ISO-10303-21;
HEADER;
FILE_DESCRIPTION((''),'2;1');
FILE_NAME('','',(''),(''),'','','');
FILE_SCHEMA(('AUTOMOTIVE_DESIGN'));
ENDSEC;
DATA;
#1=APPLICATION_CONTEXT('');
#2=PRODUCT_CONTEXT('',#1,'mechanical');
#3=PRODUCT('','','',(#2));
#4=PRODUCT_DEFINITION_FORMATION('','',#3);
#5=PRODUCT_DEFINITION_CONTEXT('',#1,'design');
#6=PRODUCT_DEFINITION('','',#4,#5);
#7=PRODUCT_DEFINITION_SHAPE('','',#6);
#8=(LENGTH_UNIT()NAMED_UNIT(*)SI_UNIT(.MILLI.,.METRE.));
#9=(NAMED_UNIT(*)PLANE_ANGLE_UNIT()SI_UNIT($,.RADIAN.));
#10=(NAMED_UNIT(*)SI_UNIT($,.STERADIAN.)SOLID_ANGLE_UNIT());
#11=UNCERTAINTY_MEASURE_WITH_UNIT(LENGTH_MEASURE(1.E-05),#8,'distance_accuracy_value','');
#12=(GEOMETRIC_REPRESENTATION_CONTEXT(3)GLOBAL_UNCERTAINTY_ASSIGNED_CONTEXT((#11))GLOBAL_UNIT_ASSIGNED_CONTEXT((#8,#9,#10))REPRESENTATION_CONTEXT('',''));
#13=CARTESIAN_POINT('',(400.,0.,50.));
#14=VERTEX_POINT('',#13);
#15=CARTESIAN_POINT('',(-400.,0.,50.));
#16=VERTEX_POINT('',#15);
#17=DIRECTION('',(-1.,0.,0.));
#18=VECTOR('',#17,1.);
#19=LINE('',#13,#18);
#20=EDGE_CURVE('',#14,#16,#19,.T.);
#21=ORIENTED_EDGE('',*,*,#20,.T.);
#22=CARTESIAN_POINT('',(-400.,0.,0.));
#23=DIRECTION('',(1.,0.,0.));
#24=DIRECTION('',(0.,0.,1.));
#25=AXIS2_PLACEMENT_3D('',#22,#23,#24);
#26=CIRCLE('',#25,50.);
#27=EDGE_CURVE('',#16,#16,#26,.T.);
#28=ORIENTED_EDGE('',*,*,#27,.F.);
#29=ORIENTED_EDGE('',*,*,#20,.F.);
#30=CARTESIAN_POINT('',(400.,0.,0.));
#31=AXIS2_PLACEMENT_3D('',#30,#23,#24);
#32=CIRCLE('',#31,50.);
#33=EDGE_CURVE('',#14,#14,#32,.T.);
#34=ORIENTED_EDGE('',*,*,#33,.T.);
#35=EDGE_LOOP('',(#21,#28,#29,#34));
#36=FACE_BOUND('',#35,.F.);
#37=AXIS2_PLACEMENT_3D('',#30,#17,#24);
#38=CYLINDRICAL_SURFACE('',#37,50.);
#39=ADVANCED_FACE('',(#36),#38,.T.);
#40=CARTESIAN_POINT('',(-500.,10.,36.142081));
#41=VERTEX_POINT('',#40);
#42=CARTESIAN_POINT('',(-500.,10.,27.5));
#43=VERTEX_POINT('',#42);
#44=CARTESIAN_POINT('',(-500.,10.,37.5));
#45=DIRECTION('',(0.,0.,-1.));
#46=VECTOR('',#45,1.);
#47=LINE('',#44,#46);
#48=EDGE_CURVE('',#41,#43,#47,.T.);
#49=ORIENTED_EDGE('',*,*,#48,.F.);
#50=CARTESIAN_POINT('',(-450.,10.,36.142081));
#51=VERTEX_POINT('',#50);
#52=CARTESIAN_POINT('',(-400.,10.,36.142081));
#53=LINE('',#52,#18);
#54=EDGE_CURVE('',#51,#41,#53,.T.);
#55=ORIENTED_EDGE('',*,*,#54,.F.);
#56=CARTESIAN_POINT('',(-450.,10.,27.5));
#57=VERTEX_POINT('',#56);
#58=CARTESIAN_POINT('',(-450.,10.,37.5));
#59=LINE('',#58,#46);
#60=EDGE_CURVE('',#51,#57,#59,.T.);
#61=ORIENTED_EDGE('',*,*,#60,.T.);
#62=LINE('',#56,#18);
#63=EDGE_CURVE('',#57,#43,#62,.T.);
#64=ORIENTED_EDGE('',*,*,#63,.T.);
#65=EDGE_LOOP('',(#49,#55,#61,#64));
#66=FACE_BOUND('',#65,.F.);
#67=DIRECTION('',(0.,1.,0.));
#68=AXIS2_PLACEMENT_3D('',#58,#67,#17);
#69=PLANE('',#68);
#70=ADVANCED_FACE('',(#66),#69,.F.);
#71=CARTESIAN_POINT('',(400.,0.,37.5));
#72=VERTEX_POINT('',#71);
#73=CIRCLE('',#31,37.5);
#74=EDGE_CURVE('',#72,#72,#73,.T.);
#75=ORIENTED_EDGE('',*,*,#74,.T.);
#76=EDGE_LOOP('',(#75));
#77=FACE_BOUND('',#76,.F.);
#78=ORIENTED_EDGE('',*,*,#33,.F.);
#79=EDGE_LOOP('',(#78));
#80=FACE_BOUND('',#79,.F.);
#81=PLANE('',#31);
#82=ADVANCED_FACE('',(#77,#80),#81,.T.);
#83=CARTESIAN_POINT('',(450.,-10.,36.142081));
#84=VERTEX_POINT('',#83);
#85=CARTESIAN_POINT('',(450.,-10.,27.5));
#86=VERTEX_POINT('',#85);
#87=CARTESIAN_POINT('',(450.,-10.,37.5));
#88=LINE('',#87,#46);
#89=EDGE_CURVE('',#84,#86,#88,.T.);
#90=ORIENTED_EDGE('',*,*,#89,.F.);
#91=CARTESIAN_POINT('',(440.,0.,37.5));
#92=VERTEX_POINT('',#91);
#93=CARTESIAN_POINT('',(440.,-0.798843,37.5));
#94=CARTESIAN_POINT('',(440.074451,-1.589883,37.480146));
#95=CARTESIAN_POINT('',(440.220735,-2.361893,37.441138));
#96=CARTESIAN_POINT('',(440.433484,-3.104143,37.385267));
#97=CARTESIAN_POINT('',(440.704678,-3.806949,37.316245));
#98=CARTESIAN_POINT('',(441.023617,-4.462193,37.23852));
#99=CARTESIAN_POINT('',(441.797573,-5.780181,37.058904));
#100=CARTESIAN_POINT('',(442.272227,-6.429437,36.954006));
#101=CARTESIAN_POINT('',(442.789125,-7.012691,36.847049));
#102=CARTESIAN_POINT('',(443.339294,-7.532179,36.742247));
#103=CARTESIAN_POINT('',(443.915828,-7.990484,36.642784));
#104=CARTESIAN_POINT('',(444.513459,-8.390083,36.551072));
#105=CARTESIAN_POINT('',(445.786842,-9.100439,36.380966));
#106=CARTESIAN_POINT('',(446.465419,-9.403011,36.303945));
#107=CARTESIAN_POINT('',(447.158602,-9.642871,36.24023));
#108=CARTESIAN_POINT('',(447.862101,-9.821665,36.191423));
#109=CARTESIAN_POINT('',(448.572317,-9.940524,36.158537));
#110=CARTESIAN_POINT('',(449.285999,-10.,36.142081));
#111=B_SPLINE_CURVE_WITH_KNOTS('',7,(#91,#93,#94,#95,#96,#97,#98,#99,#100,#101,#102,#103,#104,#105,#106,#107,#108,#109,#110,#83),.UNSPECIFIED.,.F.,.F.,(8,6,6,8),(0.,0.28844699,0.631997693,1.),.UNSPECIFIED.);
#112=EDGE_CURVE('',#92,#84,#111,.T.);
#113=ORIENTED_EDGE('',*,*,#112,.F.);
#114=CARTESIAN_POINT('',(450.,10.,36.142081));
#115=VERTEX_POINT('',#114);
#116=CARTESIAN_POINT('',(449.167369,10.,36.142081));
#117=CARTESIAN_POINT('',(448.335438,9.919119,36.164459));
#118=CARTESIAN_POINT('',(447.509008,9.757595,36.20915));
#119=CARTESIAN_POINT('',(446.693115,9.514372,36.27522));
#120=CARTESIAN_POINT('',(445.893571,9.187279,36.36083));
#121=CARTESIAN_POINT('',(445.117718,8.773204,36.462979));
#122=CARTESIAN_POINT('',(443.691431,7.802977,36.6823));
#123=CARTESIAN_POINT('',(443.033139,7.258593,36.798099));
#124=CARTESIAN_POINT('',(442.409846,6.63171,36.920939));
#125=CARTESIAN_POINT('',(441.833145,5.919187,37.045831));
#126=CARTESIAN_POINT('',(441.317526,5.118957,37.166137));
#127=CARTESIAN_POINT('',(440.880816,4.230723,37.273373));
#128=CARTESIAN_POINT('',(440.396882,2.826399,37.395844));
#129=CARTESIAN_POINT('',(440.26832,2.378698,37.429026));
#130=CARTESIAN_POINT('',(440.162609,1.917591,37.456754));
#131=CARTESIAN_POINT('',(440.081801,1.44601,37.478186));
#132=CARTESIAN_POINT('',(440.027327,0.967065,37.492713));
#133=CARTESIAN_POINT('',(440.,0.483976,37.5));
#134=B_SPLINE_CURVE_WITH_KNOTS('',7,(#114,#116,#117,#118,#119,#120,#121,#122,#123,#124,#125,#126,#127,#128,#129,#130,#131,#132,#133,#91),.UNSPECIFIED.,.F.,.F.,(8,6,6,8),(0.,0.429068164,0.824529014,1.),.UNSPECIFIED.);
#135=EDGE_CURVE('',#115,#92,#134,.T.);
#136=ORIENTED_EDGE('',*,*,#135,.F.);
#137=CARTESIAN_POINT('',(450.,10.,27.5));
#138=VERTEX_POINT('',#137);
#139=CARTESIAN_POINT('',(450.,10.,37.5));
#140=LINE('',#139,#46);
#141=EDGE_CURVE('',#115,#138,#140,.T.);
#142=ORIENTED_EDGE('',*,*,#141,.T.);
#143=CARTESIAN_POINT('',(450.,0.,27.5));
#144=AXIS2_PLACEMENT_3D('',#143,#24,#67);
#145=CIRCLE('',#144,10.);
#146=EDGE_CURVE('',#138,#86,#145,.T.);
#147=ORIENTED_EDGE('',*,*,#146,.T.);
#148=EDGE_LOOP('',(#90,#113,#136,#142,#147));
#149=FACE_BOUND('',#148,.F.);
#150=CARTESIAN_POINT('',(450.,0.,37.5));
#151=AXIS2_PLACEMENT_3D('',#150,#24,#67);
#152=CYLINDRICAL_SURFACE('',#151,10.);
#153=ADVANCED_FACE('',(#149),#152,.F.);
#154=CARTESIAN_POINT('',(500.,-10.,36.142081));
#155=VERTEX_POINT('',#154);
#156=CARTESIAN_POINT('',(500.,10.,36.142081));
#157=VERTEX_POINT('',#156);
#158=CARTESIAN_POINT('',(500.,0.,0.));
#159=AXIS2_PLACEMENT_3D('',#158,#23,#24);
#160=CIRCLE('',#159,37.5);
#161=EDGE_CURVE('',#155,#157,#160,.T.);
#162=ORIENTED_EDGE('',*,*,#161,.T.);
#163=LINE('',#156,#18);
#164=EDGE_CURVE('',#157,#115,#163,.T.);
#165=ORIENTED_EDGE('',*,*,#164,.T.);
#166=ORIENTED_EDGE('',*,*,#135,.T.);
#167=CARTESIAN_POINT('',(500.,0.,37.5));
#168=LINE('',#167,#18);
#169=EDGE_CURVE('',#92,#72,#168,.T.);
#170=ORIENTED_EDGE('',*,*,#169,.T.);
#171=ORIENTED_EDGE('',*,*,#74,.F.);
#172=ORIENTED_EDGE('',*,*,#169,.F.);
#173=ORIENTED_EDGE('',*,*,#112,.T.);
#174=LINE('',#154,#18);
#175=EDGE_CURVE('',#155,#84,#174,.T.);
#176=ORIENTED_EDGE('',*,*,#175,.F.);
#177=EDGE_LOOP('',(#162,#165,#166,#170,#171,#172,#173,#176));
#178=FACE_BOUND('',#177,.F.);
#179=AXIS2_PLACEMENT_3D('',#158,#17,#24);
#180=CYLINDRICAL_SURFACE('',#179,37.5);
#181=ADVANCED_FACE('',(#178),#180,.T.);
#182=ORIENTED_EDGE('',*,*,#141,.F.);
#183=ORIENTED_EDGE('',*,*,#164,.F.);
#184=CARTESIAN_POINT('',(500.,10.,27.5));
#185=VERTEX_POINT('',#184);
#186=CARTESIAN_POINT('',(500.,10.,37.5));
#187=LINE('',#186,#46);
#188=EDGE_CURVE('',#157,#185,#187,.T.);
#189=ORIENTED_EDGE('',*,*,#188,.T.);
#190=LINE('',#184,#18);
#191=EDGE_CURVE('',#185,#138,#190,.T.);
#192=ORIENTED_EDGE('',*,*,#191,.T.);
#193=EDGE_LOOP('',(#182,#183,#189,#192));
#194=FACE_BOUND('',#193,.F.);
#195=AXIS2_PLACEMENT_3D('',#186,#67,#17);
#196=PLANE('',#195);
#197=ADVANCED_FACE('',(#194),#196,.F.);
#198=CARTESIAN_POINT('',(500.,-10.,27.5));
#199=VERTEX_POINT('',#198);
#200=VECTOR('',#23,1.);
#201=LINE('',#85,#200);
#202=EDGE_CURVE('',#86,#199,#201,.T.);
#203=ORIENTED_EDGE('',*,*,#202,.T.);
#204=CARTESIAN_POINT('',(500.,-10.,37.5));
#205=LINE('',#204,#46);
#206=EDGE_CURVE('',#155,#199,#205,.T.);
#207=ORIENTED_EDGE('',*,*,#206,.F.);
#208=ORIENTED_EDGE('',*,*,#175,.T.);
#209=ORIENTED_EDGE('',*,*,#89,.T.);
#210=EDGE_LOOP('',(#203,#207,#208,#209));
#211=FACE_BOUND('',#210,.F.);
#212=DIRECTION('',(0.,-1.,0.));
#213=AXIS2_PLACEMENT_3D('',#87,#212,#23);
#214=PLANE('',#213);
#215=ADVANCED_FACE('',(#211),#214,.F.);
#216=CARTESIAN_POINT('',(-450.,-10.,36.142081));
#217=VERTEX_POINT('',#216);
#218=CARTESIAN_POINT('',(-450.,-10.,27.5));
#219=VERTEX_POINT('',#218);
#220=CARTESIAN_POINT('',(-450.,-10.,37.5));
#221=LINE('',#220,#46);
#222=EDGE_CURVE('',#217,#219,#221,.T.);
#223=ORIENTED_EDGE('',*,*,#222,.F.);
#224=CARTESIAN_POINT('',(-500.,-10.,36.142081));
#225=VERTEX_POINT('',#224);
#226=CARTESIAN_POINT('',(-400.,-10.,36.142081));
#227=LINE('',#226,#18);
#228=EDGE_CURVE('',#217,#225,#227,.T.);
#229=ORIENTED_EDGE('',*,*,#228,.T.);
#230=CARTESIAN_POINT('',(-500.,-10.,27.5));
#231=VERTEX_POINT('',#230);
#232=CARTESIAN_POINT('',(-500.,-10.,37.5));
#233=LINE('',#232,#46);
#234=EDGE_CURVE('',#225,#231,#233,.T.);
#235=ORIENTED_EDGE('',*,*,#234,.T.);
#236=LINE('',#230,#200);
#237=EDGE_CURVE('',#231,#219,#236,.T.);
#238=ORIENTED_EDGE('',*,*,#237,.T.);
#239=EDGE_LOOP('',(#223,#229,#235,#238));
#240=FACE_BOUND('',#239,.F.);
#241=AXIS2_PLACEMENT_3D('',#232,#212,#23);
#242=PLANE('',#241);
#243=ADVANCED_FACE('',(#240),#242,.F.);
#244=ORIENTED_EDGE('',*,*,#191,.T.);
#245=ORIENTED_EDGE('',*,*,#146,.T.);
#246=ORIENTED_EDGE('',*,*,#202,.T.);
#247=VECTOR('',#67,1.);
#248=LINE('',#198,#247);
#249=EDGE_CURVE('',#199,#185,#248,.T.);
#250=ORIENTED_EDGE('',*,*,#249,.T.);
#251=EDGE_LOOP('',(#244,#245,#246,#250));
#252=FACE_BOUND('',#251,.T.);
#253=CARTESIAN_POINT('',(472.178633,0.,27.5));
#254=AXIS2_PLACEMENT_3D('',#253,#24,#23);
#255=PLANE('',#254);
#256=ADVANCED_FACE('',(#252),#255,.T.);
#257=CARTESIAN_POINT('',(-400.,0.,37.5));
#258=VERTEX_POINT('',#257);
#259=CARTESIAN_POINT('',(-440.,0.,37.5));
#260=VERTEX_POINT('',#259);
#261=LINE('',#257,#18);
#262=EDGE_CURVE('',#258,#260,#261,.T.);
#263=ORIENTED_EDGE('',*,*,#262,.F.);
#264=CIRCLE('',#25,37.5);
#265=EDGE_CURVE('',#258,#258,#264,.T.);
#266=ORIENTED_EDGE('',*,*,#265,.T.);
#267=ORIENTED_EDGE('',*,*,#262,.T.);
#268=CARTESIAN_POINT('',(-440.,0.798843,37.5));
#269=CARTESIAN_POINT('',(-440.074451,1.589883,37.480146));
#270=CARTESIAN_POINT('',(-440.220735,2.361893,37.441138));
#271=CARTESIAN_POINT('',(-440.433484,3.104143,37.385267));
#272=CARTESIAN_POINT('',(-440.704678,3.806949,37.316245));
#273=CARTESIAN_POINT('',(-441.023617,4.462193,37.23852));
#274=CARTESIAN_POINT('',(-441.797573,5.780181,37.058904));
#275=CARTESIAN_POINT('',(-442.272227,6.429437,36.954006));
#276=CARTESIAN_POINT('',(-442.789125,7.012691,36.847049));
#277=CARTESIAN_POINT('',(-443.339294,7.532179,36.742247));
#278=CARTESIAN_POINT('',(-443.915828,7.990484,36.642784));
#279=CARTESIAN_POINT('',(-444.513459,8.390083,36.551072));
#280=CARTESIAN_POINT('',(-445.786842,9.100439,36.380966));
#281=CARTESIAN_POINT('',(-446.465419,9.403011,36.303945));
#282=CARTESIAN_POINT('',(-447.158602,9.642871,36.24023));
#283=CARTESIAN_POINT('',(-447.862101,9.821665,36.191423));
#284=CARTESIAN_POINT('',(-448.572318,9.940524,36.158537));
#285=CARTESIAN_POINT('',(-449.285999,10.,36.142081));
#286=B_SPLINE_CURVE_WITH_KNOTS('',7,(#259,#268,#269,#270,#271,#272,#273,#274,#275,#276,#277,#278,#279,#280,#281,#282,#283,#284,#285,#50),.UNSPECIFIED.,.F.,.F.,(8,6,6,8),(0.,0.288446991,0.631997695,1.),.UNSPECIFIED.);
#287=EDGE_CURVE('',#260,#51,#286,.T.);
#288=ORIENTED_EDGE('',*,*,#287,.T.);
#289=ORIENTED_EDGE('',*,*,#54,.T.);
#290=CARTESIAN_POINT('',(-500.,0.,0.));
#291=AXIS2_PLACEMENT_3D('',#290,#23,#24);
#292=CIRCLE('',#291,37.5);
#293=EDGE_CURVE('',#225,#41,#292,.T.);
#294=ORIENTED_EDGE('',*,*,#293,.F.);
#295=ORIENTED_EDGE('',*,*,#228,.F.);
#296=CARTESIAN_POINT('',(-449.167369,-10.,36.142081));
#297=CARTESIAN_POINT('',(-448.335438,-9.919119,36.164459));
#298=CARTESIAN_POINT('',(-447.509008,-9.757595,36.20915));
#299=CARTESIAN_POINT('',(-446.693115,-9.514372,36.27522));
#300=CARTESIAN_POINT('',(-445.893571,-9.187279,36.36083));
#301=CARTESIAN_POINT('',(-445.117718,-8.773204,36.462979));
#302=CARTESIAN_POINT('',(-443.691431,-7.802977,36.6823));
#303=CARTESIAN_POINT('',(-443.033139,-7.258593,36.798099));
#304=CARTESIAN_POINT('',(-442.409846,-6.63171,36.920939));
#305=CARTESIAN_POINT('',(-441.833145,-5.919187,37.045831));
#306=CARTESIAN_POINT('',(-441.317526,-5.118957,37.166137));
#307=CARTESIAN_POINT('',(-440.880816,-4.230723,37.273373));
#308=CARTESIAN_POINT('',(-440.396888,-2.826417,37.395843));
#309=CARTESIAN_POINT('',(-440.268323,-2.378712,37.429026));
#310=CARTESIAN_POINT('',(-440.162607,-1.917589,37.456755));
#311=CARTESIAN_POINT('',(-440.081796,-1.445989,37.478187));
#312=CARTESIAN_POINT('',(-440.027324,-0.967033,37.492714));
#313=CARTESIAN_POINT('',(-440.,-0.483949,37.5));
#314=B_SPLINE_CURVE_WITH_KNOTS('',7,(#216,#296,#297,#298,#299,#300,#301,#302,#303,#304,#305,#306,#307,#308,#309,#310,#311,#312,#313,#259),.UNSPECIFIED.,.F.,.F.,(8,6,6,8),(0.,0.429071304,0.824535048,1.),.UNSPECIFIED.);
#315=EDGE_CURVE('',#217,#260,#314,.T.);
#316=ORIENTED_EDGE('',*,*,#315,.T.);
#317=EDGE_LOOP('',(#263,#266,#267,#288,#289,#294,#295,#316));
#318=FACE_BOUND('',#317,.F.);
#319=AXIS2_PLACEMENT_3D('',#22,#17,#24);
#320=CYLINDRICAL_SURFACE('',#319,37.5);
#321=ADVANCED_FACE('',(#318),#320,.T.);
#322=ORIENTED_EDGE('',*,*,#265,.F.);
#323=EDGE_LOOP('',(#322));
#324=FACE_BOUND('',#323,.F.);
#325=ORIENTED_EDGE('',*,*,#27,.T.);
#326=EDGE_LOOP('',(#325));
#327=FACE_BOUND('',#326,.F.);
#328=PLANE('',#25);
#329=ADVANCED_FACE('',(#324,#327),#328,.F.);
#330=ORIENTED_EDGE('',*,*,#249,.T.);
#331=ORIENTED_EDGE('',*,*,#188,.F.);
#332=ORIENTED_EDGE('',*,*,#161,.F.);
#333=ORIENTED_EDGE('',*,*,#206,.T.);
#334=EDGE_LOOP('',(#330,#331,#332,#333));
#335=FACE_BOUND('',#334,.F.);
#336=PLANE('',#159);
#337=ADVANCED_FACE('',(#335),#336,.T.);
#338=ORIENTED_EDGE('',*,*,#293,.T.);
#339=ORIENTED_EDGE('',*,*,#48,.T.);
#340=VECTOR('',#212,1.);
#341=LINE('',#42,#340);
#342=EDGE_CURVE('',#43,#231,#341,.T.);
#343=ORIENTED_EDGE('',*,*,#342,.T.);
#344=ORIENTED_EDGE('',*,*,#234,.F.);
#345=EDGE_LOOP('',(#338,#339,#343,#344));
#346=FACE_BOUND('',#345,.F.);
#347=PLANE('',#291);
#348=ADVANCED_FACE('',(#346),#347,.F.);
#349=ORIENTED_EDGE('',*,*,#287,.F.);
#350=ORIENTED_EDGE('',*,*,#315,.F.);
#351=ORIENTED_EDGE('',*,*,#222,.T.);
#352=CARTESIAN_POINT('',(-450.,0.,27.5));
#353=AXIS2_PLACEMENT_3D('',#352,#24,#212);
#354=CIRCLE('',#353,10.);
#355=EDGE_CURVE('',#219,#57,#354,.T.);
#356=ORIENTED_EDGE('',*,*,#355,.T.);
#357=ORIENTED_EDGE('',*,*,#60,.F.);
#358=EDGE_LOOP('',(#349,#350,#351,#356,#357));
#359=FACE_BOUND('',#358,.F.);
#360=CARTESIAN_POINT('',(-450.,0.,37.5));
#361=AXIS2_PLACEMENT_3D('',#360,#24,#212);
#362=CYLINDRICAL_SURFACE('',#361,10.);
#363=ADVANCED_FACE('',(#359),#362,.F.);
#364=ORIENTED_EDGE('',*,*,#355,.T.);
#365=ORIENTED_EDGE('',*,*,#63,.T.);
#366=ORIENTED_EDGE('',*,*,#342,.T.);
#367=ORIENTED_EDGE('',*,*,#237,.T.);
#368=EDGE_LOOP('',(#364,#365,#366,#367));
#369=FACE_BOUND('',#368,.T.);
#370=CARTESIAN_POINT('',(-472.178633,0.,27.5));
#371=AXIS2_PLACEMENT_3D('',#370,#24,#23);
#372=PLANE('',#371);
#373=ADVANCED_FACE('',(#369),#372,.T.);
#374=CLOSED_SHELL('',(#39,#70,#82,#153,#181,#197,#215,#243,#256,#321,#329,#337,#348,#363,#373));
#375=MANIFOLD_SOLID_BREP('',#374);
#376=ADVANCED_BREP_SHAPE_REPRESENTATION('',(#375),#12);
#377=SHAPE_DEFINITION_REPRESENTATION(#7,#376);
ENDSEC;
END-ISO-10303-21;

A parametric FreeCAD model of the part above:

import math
import FreeCAD as App
import Part
import Sketcher
Q = App.Units.Quantity

doc = App.newDocument("Part")
body = doc.addObject("PartDesign::Body", "Body")

sketch1 = doc.addObject("Sketcher::SketchObject", "Sketch")
body.addObject(sketch1)
sketch1.AttachmentSupport = (doc.XZ_Plane, [""])
sketch1.MapMode = "FlatFace"
sketch1.addGeometry([
    Part.LineSegment(App.Vector(-500, 38, 0), App.Vector(-500, 0, 0)),
    Part.LineSegment(App.Vector(-500, 0, 0), App.Vector(500, 0, 0)),
    Part.LineSegment(App.Vector(500, 0, 0), App.Vector(500, 38, 0)),
    Part.LineSegment(App.Vector(500, 38, 0), App.Vector(400, 38, 0)),
    Part.LineSegment(App.Vector(400, 38, 0), App.Vector(400, 50, 0)),
    Part.LineSegment(App.Vector(400, 50, 0), App.Vector(-400, 50, 0)),
    Part.LineSegment(App.Vector(-400, 50, 0), App.Vector(-400, 38, 0)),
    Part.LineSegment(App.Vector(-400, 38, 0), App.Vector(-500, 38, 0)),
], False)
sketch1.addConstraint([
    Sketcher.Constraint("Coincident", 0, 2, 1, 1),
    Sketcher.Constraint("Coincident", 1, 2, 2, 1),
    Sketcher.Constraint("Coincident", 2, 2, 3, 1),
    Sketcher.Constraint("Coincident", 3, 2, 4, 1),
    Sketcher.Constraint("Coincident", 4, 2, 5, 1),
    Sketcher.Constraint("Coincident", 5, 2, 6, 1),
    Sketcher.Constraint("Coincident", 6, 2, 7, 1),
    Sketcher.Constraint("Coincident", 7, 2, 0, 1),
    Sketcher.Constraint("Vertical", 0),
    Sketcher.Constraint("Horizontal", 1),
    Sketcher.Constraint("Vertical", 2),
    Sketcher.Constraint("Horizontal", 3),
    Sketcher.Constraint("Vertical", 4),
    Sketcher.Constraint("Horizontal", 5),
    Sketcher.Constraint("Vertical", 6),
    Sketcher.Constraint("Horizontal", 7),
    Sketcher.Constraint("Symmetric", 0, 2, 1, 2, -1, 1),
    Sketcher.Constraint("Symmetric", 3, 2, 6, 2, -2),
    Sketcher.Constraint("DistanceX", 1, 1, 1, 2, Q("1000 mm")),
    Sketcher.Constraint("DistanceX", 3, 2, 3, 1, Q("100 mm")),
    Sketcher.Constraint("DistanceY", 0, 2, 0, 1, Q("37.5 mm")),
    Sketcher.Constraint("DistanceY", 4, 1, 4, 2, Q("12.5 mm")),
])
revolution = doc.addObject("PartDesign::Revolution", "Revolution")
body.addObject(revolution)
revolution.Profile = sketch1
revolution.ReferenceAxis = (sketch1, ["H_Axis"])
revolution.Angle = 360

sketch2 = doc.addObject("Sketcher::SketchObject", "Sketch001")
body.addObject(sketch2)
sketch2.AttachmentSupport = (doc.XY_Plane, [""])
sketch2.MapMode = "FlatFace"
sketch2.AttachmentOffset = App.Placement(App.Vector(0, 0, 37.5), App.Rotation())
sketch2.addGeometry([
    Part.LineSegment(App.Vector(-450, 10, 0), App.Vector(-500, 10, 0)),
    Part.LineSegment(App.Vector(-500, 10, 0), App.Vector(-500, -10, 0)),
    Part.LineSegment(App.Vector(-500, -10, 0), App.Vector(-450, -10, 0)),
    Part.ArcOfCircle(Part.Circle(App.Vector(-450, 0, 0), App.Vector(0, 0, 1), 10), math.radians(-90), math.radians(90)),
    Part.ArcOfCircle(Part.Circle(App.Vector(450, 0, 0), App.Vector(0, 0, 1), 10), math.radians(90), math.radians(270)),
    Part.LineSegment(App.Vector(450, -10, 0), App.Vector(500, -10, 0)),
    Part.LineSegment(App.Vector(500, -10, 0), App.Vector(500, 10, 0)),
    Part.LineSegment(App.Vector(500, 10, 0), App.Vector(450, 10, 0)),
], False)
sketch2.addConstraint([
    Sketcher.Constraint("Coincident", 0, 2, 1, 1),
    Sketcher.Constraint("Coincident", 1, 2, 2, 1),
    Sketcher.Constraint("Tangent", 2, 2, 3, 1),
    Sketcher.Constraint("Tangent", 3, 2, 0, 1),
    Sketcher.Constraint("Tangent", 4, 2, 5, 1),
    Sketcher.Constraint("Coincident", 5, 2, 6, 1),
    Sketcher.Constraint("Coincident", 6, 2, 7, 1),
    Sketcher.Constraint("Tangent", 7, 2, 4, 1),
    Sketcher.Constraint("Horizontal", 0),
    Sketcher.Constraint("Vertical", 1),
    Sketcher.Constraint("Horizontal", 2),
    Sketcher.Constraint("Horizontal", 5),
    Sketcher.Constraint("Vertical", 6),
    Sketcher.Constraint("Horizontal", 7),
    Sketcher.Constraint("Equal", 3, 4),
    Sketcher.Constraint("Symmetric", 3, 3, 4, 3, -1, 1),
    Sketcher.Constraint("Symmetric", 1, 2, 5, 2, -2),
    Sketcher.Constraint("Radius", 3, Q("10 mm")),
    Sketcher.Constraint("DistanceX", 0, 2, 0, 1, Q("50 mm")),
    Sketcher.Constraint("DistanceX", 3, 3, -1, 1, Q("450 mm")),
])
pocket1 = doc.addObject("PartDesign::Pocket", "Pocket")
body.addObject(pocket1)
pocket1.Profile = sketch2
pocket1.Length = 10

doc.recompute()
